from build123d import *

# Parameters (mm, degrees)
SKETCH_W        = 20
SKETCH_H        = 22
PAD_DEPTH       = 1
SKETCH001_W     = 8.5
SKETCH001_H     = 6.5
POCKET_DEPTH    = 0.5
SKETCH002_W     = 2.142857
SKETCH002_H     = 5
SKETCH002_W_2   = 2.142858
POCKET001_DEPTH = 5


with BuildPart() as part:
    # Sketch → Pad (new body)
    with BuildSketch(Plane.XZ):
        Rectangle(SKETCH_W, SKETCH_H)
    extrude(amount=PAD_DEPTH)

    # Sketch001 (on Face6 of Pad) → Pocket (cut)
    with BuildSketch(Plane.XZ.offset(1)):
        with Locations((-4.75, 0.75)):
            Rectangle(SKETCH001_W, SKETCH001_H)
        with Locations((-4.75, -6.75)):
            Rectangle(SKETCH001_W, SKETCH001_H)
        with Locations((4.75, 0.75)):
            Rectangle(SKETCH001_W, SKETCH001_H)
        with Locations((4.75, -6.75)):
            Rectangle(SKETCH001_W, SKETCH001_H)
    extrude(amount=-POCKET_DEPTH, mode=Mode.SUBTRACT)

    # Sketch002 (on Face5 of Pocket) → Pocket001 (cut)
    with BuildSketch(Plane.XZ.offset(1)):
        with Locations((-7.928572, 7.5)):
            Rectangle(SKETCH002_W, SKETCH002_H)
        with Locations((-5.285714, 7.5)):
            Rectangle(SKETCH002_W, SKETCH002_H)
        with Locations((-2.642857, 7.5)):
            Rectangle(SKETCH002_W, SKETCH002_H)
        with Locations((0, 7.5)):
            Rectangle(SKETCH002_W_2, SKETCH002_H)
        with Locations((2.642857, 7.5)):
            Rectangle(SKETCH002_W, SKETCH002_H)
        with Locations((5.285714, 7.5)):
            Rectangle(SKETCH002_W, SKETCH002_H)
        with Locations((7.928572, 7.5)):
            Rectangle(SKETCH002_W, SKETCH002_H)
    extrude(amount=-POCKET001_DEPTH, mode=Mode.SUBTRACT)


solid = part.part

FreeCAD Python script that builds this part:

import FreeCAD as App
import Part
import Sketcher

V = App.Vector
Q = App.Units.Quantity


def add_polygon(sketch, points):
    """Adds a closed chain of lines whose ends are joined by coincident constraints."""
    first, n = sketch.GeometryCount, len(points)
    for a, b in zip(points, points[1:] + points[:1]):
        sketch.addGeometry(Part.LineSegment(App.Vector(*a, 0), App.Vector(*b, 0)), False)
    for i in range(n):
        sketch.addConstraint(Sketcher.Constraint("Coincident", first + i, 2, first + (i + 1) % n, 1))

doc = App.newDocument("Part")
params = doc.addObject("Spreadsheet::Sheet", "Params")
for row, (alias, value) in enumerate([
    ("sketch1_width", "20 mm"),
    ("sketch1_height", "22 mm"),
    ("pad1_length", "1 mm"),
    ("sketch2_width", "8.5 mm"),
    ("sketch2_height", "6.5 mm"),
    ("pocket1_length", "0.5 mm"),
    ("sketch3_height", "5 mm"),
    ("pocket2_length", "5 mm"),
], start=1):
    params.set(f"A{row}", alias)
    params.set(f"B{row}", "=" + value)
    params.setAlias(f"B{row}", alias)

body = doc.addObject("PartDesign::Body", "Body")

# Sketch on XZ plane
sketch1 = body.newObject("Sketcher::SketchObject", "Sketch")
sketch1.AttachmentSupport = (doc.getObject("XZ_Plane"), [""])
sketch1.MapMode = "FlatFace"
add_polygon(sketch1, [(-10, 11), (-10, -11), (10, -11), (10, 11)])  # lines 0-3
sketch1.addConstraint(Sketcher.Constraint("Vertical", 0))
sketch1.addConstraint(Sketcher.Constraint("Horizontal", 1))
sketch1.addConstraint(Sketcher.Constraint("Vertical", 2))
sketch1.addConstraint(Sketcher.Constraint("Horizontal", 3))
sketch1.addConstraint(Sketcher.Constraint("Symmetric", 0, 2, 2, 2, -1, 1))
sketch1.addConstraint(Sketcher.Constraint("DistanceX", 1, 1, 1, 2, Q("20 mm")))
sketch1.addConstraint(Sketcher.Constraint("DistanceY", 0, 2, 0, 1, Q("22 mm")))
sketch1.setExpression("Constraints[9]", "Params.sketch1_width")
sketch1.setExpression("Constraints[10]", "Params.sketch1_height")
pad1 = body.newObject("PartDesign::Pad", "Pad")
pad1.Profile = sketch1
pad1.setExpression("Length", "Params.pad1_length")

# Sketch on XZ plane
sketch2 = body.newObject("Sketcher::SketchObject", "Sketch001")
sketch2.AttachmentSupport = (doc.getObject("XZ_Plane"), [""])
sketch2.MapMode = "FlatFace"
sketch2.AttachmentOffset = App.Placement(V(0, 0, 1), App.Rotation())
add_polygon(sketch2, [(-9, 4), (-9, -2.5), (-0.5, -2.5), (-0.5, 4)])  # lines 0-3
add_polygon(sketch2, [(-9, -3.5), (-9, -10), (-0.5, -10), (-0.5, -3.5)])  # lines 4-7
add_polygon(sketch2, [(0.5, 4), (0.5, -2.5), (9, -2.5), (9, 4)])  # lines 8-11
add_polygon(sketch2, [(0.5, -3.5), (0.5, -10), (9, -10), (9, -3.5)])  # lines 12-15
sketch2.addConstraint(Sketcher.Constraint("Vertical", 0))
sketch2.addConstraint(Sketcher.Constraint("Horizontal", 1))
sketch2.addConstraint(Sketcher.Constraint("Vertical", 2))
sketch2.addConstraint(Sketcher.Constraint("Horizontal", 3))
sketch2.addConstraint(Sketcher.Constraint("Vertical", 4))
sketch2.addConstraint(Sketcher.Constraint("Horizontal", 5))
sketch2.addConstraint(Sketcher.Constraint("Vertical", 6))
sketch2.addConstraint(Sketcher.Constraint("Horizontal", 7))
sketch2.addConstraint(Sketcher.Constraint("Vertical", 8))
sketch2.addConstraint(Sketcher.Constraint("Horizontal", 9))
sketch2.addConstraint(Sketcher.Constraint("Vertical", 10))
sketch2.addConstraint(Sketcher.Constraint("Horizontal", 11))
sketch2.addConstraint(Sketcher.Constraint("Vertical", 12))
sketch2.addConstraint(Sketcher.Constraint("Horizontal", 13))
sketch2.addConstraint(Sketcher.Constraint("Vertical", 14))
sketch2.addConstraint(Sketcher.Constraint("Horizontal", 15))
sketch2.addConstraint(Sketcher.Constraint("Symmetric", 1, 2, 8, 2, -2))
sketch2.addConstraint(Sketcher.Constraint("Symmetric", 3, 2, 10, 2, -2))
sketch2.addConstraint(Sketcher.Constraint("Symmetric", 5, 2, 12, 2, -2))
sketch2.addConstraint(Sketcher.Constraint("Symmetric", 7, 2, 14, 2, -2))
sketch2.addConstraint(Sketcher.Constraint("Vertical", 3, 2, 4, 2))
sketch2.addConstraint(Sketcher.Constraint("Vertical", 2, 2, 5, 2))
sketch2.addConstraint(Sketcher.Constraint("Equal", 2, 4))
sketch2.addConstraint(Sketcher.Constraint("DistanceX", 1, 1, 1, 2, Q("8.5 mm")))
sketch2.addConstraint(Sketcher.Constraint("DistanceY", 0, 2, 0, 1, Q("6.5 mm")))
sketch2.addConstraint(Sketcher.Constraint("DistanceX", 0, 2, -1, 1, Q("9 mm")))
sketch2.addConstraint(Sketcher.Constraint("DistanceY", -1, 1, 2, 2, Q("4 mm")))
sketch2.addConstraint(Sketcher.Constraint("DistanceY", 4, 2, -1, 1, Q("10 mm")))
sketch2.setExpression("Constraints[39]", "Params.sketch2_width")
sketch2.setExpression("Constraints[40]", "Params.sketch2_height")
pocket1 = body.newObject("PartDesign::Pocket", "Pocket")
pocket1.Profile = sketch2
pocket1.setExpression("Length", "Params.pocket1_length")

# Sketch on XZ plane
sketch3 = body.newObject("Sketcher::SketchObject", "Sketch002")
sketch3.AttachmentSupport = (doc.getObject("XZ_Plane"), [""])
sketch3.MapMode = "FlatFace"
sketch3.AttachmentOffset = App.Placement(V(0, 0, 1), App.Rotation())
add_polygon(sketch3, [(-9.000001, 10), (-9.000001, 5), (-6.857144, 5), (-6.857144, 10)])  # lines 0-3
add_polygon(sketch3, [(-6.357143, 10), (-6.357143, 5), (-4.214285, 5), (-4.214285, 10)])  # lines 4-7
add_polygon(sketch3, [(-3.714285, 10), (-3.714285, 5), (-1.571428, 5), (-1.571428, 10)])  # lines 8-11
add_polygon(sketch3, [(-1.071429, 10), (-1.071429, 5), (1.071429, 5), (1.071429, 10)])  # lines 12-15
add_polygon(sketch3, [(1.571428, 10), (1.571428, 5), (3.714285, 5), (3.714285, 10)])  # lines 16-19
add_polygon(sketch3, [(4.214285, 10), (4.214285, 5), (6.357143, 5), (6.357143, 10)])  # lines 20-23
add_polygon(sketch3, [(6.857144, 10), (6.857144, 5), (9.000001, 5), (9.000001, 10)])  # lines 24-27
sketch3.addConstraint(Sketcher.Constraint("Vertical", 0))
sketch3.addConstraint(Sketcher.Constraint("Horizontal", 1))
sketch3.addConstraint(Sketcher.Constraint("Vertical", 2))
sketch3.addConstraint(Sketcher.Constraint("Horizontal", 3))
sketch3.addConstraint(Sketcher.Constraint("Vertical", 4))
sketch3.addConstraint(Sketcher.Constraint("Horizontal", 5))
sketch3.addConstraint(Sketcher.Constraint("Vertical", 6))
sketch3.addConstraint(Sketcher.Constraint("Horizontal", 7))
sketch3.addConstraint(Sketcher.Constraint("Vertical", 8))
sketch3.addConstraint(Sketcher.Constraint("Horizontal", 9))
sketch3.addConstraint(Sketcher.Constraint("Vertical", 10))
sketch3.addConstraint(Sketcher.Constraint("Horizontal", 11))
sketch3.addConstraint(Sketcher.Constraint("Vertical", 12))
sketch3.addConstraint(Sketcher.Constraint("Horizontal", 13))
sketch3.addConstraint(Sketcher.Constraint("Vertical", 14))
sketch3.addConstraint(Sketcher.Constraint("Horizontal", 15))
sketch3.addConstraint(Sketcher.Constraint("Vertical", 16))
sketch3.addConstraint(Sketcher.Constraint("Horizontal", 17))
sketch3.addConstraint(Sketcher.Constraint("Vertical", 18))
sketch3.addConstraint(Sketcher.Constraint("Horizontal", 19))
sketch3.addConstraint(Sketcher.Constraint("Vertical", 20))
sketch3.addConstraint(Sketcher.Constraint("Horizontal", 21))
sketch3.addConstraint(Sketcher.Constraint("Vertical", 22))
sketch3.addConstraint(Sketcher.Constraint("Horizontal", 23))
sketch3.addConstraint(Sketcher.Constraint("Vertical", 24))
sketch3.addConstraint(Sketcher.Constraint("Horizontal", 25))
sketch3.addConstraint(Sketcher.Constraint("Vertical", 26))
sketch3.addConstraint(Sketcher.Constraint("Horizontal", 27))
sketch3.addConstraint(Sketcher.Constraint("Symmetric", 9, 2, 16, 2, -2))
sketch3.addConstraint(Sketcher.Constraint("Symmetric", 11, 2, 18, 2, -2))
sketch3.addConstraint(Sketcher.Constraint("Symmetric", 5, 2, 20, 2, -2))
sketch3.addConstraint(Sketcher.Constraint("Symmetric", 7, 2, 22, 2, -2))
sketch3.addConstraint(Sketcher.Constraint("Symmetric", 1, 2, 24, 2, -2))
sketch3.addConstraint(Sketcher.Constraint("Symmetric", 3, 2, 26, 2, -2))
sketch3.addConstraint(Sketcher.Constraint("Horizontal", 1, 2, 4, 2))
sketch3.addConstraint(Sketcher.Constraint("Horizontal", 3, 2, 6, 2))
sketch3.addConstraint(Sketcher.Constraint("Horizontal", 5, 2, 8, 2))
sketch3.addConstraint(Sketcher.Constraint("Horizontal", 7, 2, 10, 2))
sketch3.addConstraint(Sketcher.Constraint("Horizontal", 9, 2, 12, 2))
sketch3.addConstraint(Sketcher.Constraint("Horizontal", 11, 2, 14, 2))
sketch3.addConstraint(Sketcher.Constraint("Equal", 3, 5))
sketch3.addConstraint(Sketcher.Constraint("Equal", 7, 9))
sketch3.addConstraint(Sketcher.Constraint("Equal", 11, 13))
sketch3.addConstraint(Sketcher.Constraint("DistanceY", 0, 2, 0, 1, Q("5 mm")))
sketch3.addConstraint(Sketcher.Constraint("DistanceX", 0, 2, -1, 1, Q("9.000001 mm")))
sketch3.addConstraint(Sketcher.Constraint("DistanceY", -1, 1, 0, 2, Q("5 mm")))
sketch3.addConstraint(Sketcher.Constraint("DistanceX", 1, 2, 4, 2, Q("0.500001 mm")))
sketch3.addConstraint(Sketcher.Constraint("DistanceX", 5, 2, 8, 2, Q("0.5 mm")))
sketch3.addConstraint(Sketcher.Constraint("DistanceX", 9, 2, 12, 2, Q("0.499999 mm")))
sketch3.addConstraint(Sketcher.Constraint("DistanceX", 13, 2, 16, 2, Q("0.499999 mm")))
sketch3.setExpression("Constraints[71]", "Params.sketch3_height")
pocket2 = body.newObject("PartDesign::Pocket", "Pocket001")
pocket2.Profile = sketch3
pocket2.setExpression("Length", "Params.pocket2_length")

doc.recompute()
